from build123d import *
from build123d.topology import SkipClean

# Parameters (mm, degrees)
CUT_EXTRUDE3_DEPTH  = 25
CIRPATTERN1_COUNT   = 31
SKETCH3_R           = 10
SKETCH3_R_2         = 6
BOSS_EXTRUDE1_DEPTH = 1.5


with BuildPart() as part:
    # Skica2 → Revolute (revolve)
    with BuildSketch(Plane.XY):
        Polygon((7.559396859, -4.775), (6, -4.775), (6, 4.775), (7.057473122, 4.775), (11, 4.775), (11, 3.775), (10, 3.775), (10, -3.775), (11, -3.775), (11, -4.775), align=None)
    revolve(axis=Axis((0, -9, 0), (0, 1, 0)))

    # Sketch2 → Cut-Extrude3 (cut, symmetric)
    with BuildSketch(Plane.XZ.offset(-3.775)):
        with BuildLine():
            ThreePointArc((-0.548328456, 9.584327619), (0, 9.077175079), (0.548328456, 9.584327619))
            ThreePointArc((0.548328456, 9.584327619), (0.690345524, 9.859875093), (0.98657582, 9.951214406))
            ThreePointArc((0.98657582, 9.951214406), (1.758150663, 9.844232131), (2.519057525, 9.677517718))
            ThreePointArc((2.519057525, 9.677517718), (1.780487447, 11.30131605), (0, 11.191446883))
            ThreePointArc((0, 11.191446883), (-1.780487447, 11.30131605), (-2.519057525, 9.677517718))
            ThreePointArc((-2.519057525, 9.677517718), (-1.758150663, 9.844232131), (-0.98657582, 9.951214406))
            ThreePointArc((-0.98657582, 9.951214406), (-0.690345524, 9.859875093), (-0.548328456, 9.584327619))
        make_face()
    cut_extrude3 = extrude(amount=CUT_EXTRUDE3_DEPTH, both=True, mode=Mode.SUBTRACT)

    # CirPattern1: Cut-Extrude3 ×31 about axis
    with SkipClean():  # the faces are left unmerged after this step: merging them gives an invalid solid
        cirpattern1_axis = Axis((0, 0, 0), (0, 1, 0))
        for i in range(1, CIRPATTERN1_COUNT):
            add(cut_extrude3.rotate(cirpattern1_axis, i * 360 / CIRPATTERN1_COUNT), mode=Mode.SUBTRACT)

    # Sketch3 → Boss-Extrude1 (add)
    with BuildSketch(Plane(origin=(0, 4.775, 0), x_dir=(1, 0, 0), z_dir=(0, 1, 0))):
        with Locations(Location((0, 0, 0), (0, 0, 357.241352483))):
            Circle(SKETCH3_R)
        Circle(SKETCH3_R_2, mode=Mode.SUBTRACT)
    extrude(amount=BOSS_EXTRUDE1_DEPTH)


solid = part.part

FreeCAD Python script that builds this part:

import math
import FreeCAD as App
import Part
import Sketcher
from FreeCAD import Vector
Q = App.Units.Quantity


def add_polygon(sketch, points):
    """Adds a closed chain of lines whose ends are joined by coincident constraints."""
    first, n = sketch.GeometryCount, len(points)
    for a, b in zip(points, points[1:] + points[:1]):
        sketch.addGeometry(Part.LineSegment(App.Vector(*a, 0), App.Vector(*b, 0)), False)
    for i in range(n):
        sketch.addConstraint(Sketcher.Constraint("Coincident", first + i, 2, first + (i + 1) % n, 1))

doc = App.newDocument("Part")
body = doc.addObject("PartDesign::Body", "Body")

# Sketch on XY plane
sketch1 = body.newObject("Sketcher::SketchObject", "Sketch")
sketch1.AttachmentSupport = (doc.getObject("XY_Plane"), [""])
sketch1.MapMode = "FlatFace"
add_polygon(sketch1, [(6, -4.775), (11, -4.775), (11, -3.775), (10, -3.775), (10, 3.775), (11, 3.775), (11, 4.775), (6, 4.775)])  # lines 0-7
sketch1.addConstraint(Sketcher.Constraint("Horizontal", 0))
sketch1.addConstraint(Sketcher.Constraint("Vertical", 1))
sketch1.addConstraint(Sketcher.Constraint("Horizontal", 2))
sketch1.addConstraint(Sketcher.Constraint("Vertical", 3))
sketch1.addConstraint(Sketcher.Constraint("Horizontal", 4))
sketch1.addConstraint(Sketcher.Constraint("Vertical", 5))
sketch1.addConstraint(Sketcher.Constraint("Horizontal", 6))
sketch1.addConstraint(Sketcher.Constraint("Vertical", 7))
sketch1.addConstraint(Sketcher.Constraint("Symmetric", 1, 2, 4, 2, -1))
sketch1.addConstraint(Sketcher.Constraint("Equal", 4, 1))
sketch1.addConstraint(Sketcher.Constraint("Equal", 1, 5))
sketch1.addConstraint(Sketcher.Constraint("DistanceX", 0, 1, 0, 2, Q("5 mm")))
sketch1.addConstraint(Sketcher.Constraint("DistanceX", 2, 2, 2, 1, Q("1 mm")))
sketch1.addConstraint(Sketcher.Constraint("DistanceX", -1, 1, 0, 2, Q("11 mm")))
sketch1.addConstraint(Sketcher.Constraint("DistanceY", 3, 1, 3, 2, Q("7.55 mm")))
revolution = body.newObject("PartDesign::Revolution", "Revolution")
revolution.Profile = sketch1
revolution.ReferenceAxis = (sketch1, ["V_Axis"])
revolution.Angle = 360

# Sketch on XZ plane
sketch2 = body.newObject("Sketcher::SketchObject", "Sketch001")
sketch2.AttachmentSupport = (doc.getObject("XZ_Plane"), [""])
sketch2.MapMode = "FlatFace"
sketch2.AttachmentOffset = App.Placement(Vector(0, 0, -3.775), App.Rotation())
sketch2.addGeometry(Part.ArcOfCircle(Part.Circle(Vector(0, 9.627175, 0), Vector(0, 0, 1), 0.55), math.radians(-175.531875), math.radians(-4.468125)), False)
sketch2.addGeometry(Part.ArcOfCircle(Part.Circle(Vector(0.947113, 9.553166, 0), Vector(0, 0, 1), 0.4), math.radians(84.338127), math.radians(175.531875)), False)
sketch2.addGeometry(Part.ArcOfCircle(Part.Circle(Vector(0, 0, 0), Vector(0, 0, 1), 10), math.radians(75.409686), math.radians(84.338127)), False)
sketch2.addGeometry(Part.ArcOfCircle(Part.Circle(Vector(0.970065, 9.952837, 0), Vector(0, 0, 1), 1.57327), math.radians(-10.078565), math.radians(128.067646)), False)
sketch2.addGeometry(Part.ArcOfCircle(Part.Circle(Vector(-0.970065, 9.952837, 0), Vector(0, 0, 1), 1.57327), math.radians(51.932354), math.radians(190.078565)), False)
sketch2.addGeometry(Part.ArcOfCircle(Part.Circle(Vector(0, 0, 0), Vector(0, 0, 1), 10), math.radians(95.661873), math.radians(104.590314)), False)
sketch2.addGeometry(Part.ArcOfCircle(Part.Circle(Vector(-0.947113, 9.553166, 0), Vector(0, 0, 1), 0.4), math.radians(4.468125), math.radians(95.661873)), False)
sketch2.addConstraint(Sketcher.Constraint("Tangent", 0, 2, 1, 2))
sketch2.addConstraint(Sketcher.Constraint("Tangent", 1, 1, 2, 2))
sketch2.addConstraint(Sketcher.Constraint("Coincident", 2, 1, 3, 1))
sketch2.addConstraint(Sketcher.Constraint("Coincident", 3, 2, 4, 1))
sketch2.addConstraint(Sketcher.Constraint("Coincident", 4, 2, 5, 2))
sketch2.addConstraint(Sketcher.Constraint("Tangent", 5, 1, 6, 2))
sketch2.addConstraint(Sketcher.Constraint("Tangent", 6, 1, 0, 1))
sketch2.addConstraint(Sketcher.Constraint("Coincident", 2, 3, -1, 1))
sketch2.addConstraint(Sketcher.Constraint("Coincident", 5, 3, -1, 1))
sketch2.addConstraint(Sketcher.Constraint("Equal", 3, 4))
sketch2.addConstraint(Sketcher.Constraint("Equal", 2, 5))
sketch2.addConstraint(Sketcher.Constraint("Equal", 1, 6))
sketch2.addConstraint(Sketcher.Constraint("Symmetric", 3, 3, 4, 3, -2))
sketch2.addConstraint(Sketcher.Constraint("PointOnObject", 0, 3, -2))
sketch2.addConstraint(Sketcher.Constraint("Radius", 2, Q("10 mm")))
sketch2.addConstraint(Sketcher.Constraint("Radius", 1, Q("0.4 mm")))
sketch2.addConstraint(Sketcher.Constraint("Radius", 0, Q("0.55 mm")))
sketch2.addConstraint(Sketcher.Constraint("Radius", 3, Q("1.57327 mm")))
sketch2.addConstraint(Sketcher.Constraint("DistanceX", -1, 1, 0, 2, Q("0.548328 mm")))
sketch2.addConstraint(Sketcher.Constraint("DistanceY", 1, 3, 3, 3, Q("0.399672 mm")))
sketch2.addConstraint(Sketcher.Constraint("DistanceX", 4, 3, 3, 3, Q("1.94013 mm")))
pocket1 = body.newObject("PartDesign::Pocket", "Pocket")
pocket1.Profile = sketch2
pocket1.Length = 50
pocket1.Midplane = True
doc.recompute()

polarpattern = body.newObject("PartDesign::PolarPattern", "PolarPattern")
polarpattern.Originals = [pocket1]
polarpattern.Axis = (doc.getObject("Y_Axis"), [""])
polarpattern.Angle = 360
polarpattern.Occurrences = 31
body.Tip = polarpattern

# Sketch on XZ plane
sketch3 = body.newObject("Sketcher::SketchObject", "Sketch002")
sketch3.AttachmentSupport = (doc.getObject("XZ_Plane"), [""])
sketch3.MapMode = "FlatFace"
sketch3.AttachmentOffset = App.Placement(Vector(0, 0, -4.775), App.Rotation())
sketch3.addGeometry(Part.Circle(Vector(0, 0, 0), Vector(0, 0, 1), 10), False)
sketch3.addGeometry(Part.Circle(Vector(0, 0, 0), Vector(0, 0, 1), 6), False)
sketch3.addConstraint(Sketcher.Constraint("Coincident", 0, 3, -1, 1))
sketch3.addConstraint(Sketcher.Constraint("Coincident", 1, 3, -1, 1))
sketch3.addConstraint(Sketcher.Constraint("Diameter", 0, Q("20 mm")))
sketch3.addConstraint(Sketcher.Constraint("Diameter", 1, Q("12 mm")))
pad1 = body.newObject("PartDesign::Pad", "Pad")
pad1.Profile = sketch3
pad1.Length = 1.5
pad1.Reversed = True

doc.recompute()
